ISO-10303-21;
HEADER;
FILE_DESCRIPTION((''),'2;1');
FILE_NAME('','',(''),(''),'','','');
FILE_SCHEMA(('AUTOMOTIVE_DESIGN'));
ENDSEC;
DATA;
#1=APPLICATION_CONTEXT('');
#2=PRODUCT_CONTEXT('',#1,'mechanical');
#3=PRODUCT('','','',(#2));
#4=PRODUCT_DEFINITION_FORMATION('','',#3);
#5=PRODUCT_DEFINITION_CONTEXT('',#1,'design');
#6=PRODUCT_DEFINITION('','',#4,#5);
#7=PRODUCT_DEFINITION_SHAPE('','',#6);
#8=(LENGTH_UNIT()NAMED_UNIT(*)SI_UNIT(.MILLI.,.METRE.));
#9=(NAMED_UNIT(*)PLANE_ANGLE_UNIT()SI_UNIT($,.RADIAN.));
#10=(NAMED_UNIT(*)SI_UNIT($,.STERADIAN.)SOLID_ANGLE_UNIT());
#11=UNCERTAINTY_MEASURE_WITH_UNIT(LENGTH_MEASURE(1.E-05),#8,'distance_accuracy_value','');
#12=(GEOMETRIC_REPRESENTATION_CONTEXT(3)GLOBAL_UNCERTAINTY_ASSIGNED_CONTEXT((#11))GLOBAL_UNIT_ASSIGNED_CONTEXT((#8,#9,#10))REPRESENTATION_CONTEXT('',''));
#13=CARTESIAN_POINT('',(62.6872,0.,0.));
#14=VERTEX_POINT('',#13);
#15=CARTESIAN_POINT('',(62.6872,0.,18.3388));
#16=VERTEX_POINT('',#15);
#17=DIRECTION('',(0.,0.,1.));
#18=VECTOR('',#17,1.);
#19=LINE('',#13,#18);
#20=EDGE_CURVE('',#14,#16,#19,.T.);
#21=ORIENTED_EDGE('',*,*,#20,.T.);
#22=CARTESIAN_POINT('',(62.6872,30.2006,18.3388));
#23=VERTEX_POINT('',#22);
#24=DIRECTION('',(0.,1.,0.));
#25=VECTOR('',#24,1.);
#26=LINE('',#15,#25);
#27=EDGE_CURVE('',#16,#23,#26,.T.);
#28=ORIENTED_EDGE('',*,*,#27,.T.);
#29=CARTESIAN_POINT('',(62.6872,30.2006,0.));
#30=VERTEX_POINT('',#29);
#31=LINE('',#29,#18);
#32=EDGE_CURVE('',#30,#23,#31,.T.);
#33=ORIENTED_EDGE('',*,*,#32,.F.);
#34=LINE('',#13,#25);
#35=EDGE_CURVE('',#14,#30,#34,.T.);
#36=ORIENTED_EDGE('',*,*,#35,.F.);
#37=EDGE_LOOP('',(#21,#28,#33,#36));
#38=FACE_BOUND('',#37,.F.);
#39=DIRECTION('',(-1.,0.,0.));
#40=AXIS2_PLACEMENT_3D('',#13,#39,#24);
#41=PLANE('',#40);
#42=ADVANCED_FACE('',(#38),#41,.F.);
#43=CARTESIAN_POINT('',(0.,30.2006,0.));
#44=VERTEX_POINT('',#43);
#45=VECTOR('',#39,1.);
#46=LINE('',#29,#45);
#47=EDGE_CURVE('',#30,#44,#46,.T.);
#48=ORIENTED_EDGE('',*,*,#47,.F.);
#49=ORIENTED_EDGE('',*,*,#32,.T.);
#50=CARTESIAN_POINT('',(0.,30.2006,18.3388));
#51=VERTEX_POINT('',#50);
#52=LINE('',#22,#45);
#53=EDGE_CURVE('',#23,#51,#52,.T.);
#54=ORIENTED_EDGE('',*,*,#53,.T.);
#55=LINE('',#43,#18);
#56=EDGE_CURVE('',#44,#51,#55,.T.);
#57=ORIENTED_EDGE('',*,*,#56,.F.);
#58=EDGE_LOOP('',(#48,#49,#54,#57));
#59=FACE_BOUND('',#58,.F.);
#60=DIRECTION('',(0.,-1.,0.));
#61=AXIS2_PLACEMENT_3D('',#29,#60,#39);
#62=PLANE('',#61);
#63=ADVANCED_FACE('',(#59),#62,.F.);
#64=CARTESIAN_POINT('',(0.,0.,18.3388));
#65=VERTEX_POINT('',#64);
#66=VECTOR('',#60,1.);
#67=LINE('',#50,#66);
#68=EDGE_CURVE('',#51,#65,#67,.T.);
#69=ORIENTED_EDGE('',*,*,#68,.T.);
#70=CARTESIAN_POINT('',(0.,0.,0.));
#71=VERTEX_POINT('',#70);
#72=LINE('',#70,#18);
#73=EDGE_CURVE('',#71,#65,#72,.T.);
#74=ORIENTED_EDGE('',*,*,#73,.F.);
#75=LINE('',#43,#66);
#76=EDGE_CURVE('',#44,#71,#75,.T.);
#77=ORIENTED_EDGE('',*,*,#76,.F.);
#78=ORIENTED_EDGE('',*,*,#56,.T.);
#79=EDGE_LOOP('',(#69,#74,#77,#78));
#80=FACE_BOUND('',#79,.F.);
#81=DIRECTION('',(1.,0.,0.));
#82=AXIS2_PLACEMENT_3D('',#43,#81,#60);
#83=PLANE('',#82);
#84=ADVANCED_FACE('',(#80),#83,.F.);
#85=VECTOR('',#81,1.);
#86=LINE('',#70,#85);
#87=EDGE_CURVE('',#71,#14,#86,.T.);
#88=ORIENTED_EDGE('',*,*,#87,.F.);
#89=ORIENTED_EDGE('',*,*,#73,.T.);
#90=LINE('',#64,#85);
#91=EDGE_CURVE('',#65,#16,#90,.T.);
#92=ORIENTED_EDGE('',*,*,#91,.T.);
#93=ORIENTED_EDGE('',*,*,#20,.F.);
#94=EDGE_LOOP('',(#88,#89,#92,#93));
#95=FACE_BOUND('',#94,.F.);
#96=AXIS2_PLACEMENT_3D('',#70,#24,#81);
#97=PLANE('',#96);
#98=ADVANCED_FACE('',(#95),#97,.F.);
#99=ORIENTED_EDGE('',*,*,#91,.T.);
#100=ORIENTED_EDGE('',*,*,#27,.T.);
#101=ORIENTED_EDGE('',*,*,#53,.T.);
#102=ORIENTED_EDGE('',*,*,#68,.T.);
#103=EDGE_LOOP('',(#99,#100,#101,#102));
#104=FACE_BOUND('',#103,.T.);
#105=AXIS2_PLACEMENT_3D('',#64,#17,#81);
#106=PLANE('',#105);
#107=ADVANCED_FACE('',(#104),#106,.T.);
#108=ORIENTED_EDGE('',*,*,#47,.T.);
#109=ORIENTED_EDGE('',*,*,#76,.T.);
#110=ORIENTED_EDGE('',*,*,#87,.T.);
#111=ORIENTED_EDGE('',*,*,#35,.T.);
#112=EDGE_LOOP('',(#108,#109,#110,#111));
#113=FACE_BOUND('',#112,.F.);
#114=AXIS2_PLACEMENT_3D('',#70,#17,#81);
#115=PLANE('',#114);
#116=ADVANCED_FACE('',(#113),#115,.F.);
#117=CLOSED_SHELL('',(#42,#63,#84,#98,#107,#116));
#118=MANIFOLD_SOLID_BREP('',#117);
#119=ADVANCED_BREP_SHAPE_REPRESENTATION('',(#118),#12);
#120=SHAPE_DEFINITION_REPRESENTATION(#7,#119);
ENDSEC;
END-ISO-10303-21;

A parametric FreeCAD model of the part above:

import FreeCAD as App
import Part
import Sketcher
Q = App.Units.Quantity

doc = App.newDocument("Part")
params = doc.addObject("Spreadsheet::Sheet", "Params")
for row, (alias, value) in enumerate([
    ("sketch1_width", "2.468 in"),
    ("sketch1_height", "1.189 in"),
    ("pad1_length", "0.722 in"),
], start=1):
    params.set(f"A{row}", alias)
    params.set(f"B{row}", "=" + value)
    params.setAlias(f"B{row}", alias)

body = doc.addObject("PartDesign::Body", "Body")

# Sketch on XY plane
sketch1 = doc.addObject("Sketcher::SketchObject", "Sketch")
body.addObject(sketch1)
sketch1.AttachmentSupport = (doc.XY_Plane, [""])
sketch1.MapMode = "FlatFace"
sketch1.addGeometry([
    Part.LineSegment(App.Vector(0, 30.2006, 0), App.Vector(0, 0, 0)),
    Part.LineSegment(App.Vector(0, 0, 0), App.Vector(62.6872, 0, 0)),
    Part.LineSegment(App.Vector(62.6872, 0, 0), App.Vector(62.6872, 30.2006, 0)),
    Part.LineSegment(App.Vector(62.6872, 30.2006, 0), App.Vector(0, 30.2006, 0)),
], False)
sketch1.addConstraint([
    Sketcher.Constraint("Coincident", 0, 2, 1, 1),
    Sketcher.Constraint("Coincident", 1, 2, 2, 1),
    Sketcher.Constraint("Coincident", 2, 2, 3, 1),
    Sketcher.Constraint("Coincident", 3, 2, 0, 1),
    Sketcher.Constraint("Vertical", 0),
    Sketcher.Constraint("Horizontal", 1),
    Sketcher.Constraint("Vertical", 2),
    Sketcher.Constraint("Horizontal", 3),
    Sketcher.Constraint("Coincident", 0, 2, -1, 1),
    Sketcher.Constraint("DistanceX", 1, 1, 1, 2, Q("2.468 in")),
    Sketcher.Constraint("DistanceY", 0, 2, 0, 1, Q("1.189 in")),
])
sketch1.setExpression("Constraints[9]", "Params.sketch1_width")
sketch1.setExpression("Constraints[10]", "Params.sketch1_height")
pad1 = doc.addObject("PartDesign::Pad", "Pad")
body.addObject(pad1)
pad1.Profile = sketch1
pad1.setExpression("Length", "Params.pad1_length")

doc.recompute()
